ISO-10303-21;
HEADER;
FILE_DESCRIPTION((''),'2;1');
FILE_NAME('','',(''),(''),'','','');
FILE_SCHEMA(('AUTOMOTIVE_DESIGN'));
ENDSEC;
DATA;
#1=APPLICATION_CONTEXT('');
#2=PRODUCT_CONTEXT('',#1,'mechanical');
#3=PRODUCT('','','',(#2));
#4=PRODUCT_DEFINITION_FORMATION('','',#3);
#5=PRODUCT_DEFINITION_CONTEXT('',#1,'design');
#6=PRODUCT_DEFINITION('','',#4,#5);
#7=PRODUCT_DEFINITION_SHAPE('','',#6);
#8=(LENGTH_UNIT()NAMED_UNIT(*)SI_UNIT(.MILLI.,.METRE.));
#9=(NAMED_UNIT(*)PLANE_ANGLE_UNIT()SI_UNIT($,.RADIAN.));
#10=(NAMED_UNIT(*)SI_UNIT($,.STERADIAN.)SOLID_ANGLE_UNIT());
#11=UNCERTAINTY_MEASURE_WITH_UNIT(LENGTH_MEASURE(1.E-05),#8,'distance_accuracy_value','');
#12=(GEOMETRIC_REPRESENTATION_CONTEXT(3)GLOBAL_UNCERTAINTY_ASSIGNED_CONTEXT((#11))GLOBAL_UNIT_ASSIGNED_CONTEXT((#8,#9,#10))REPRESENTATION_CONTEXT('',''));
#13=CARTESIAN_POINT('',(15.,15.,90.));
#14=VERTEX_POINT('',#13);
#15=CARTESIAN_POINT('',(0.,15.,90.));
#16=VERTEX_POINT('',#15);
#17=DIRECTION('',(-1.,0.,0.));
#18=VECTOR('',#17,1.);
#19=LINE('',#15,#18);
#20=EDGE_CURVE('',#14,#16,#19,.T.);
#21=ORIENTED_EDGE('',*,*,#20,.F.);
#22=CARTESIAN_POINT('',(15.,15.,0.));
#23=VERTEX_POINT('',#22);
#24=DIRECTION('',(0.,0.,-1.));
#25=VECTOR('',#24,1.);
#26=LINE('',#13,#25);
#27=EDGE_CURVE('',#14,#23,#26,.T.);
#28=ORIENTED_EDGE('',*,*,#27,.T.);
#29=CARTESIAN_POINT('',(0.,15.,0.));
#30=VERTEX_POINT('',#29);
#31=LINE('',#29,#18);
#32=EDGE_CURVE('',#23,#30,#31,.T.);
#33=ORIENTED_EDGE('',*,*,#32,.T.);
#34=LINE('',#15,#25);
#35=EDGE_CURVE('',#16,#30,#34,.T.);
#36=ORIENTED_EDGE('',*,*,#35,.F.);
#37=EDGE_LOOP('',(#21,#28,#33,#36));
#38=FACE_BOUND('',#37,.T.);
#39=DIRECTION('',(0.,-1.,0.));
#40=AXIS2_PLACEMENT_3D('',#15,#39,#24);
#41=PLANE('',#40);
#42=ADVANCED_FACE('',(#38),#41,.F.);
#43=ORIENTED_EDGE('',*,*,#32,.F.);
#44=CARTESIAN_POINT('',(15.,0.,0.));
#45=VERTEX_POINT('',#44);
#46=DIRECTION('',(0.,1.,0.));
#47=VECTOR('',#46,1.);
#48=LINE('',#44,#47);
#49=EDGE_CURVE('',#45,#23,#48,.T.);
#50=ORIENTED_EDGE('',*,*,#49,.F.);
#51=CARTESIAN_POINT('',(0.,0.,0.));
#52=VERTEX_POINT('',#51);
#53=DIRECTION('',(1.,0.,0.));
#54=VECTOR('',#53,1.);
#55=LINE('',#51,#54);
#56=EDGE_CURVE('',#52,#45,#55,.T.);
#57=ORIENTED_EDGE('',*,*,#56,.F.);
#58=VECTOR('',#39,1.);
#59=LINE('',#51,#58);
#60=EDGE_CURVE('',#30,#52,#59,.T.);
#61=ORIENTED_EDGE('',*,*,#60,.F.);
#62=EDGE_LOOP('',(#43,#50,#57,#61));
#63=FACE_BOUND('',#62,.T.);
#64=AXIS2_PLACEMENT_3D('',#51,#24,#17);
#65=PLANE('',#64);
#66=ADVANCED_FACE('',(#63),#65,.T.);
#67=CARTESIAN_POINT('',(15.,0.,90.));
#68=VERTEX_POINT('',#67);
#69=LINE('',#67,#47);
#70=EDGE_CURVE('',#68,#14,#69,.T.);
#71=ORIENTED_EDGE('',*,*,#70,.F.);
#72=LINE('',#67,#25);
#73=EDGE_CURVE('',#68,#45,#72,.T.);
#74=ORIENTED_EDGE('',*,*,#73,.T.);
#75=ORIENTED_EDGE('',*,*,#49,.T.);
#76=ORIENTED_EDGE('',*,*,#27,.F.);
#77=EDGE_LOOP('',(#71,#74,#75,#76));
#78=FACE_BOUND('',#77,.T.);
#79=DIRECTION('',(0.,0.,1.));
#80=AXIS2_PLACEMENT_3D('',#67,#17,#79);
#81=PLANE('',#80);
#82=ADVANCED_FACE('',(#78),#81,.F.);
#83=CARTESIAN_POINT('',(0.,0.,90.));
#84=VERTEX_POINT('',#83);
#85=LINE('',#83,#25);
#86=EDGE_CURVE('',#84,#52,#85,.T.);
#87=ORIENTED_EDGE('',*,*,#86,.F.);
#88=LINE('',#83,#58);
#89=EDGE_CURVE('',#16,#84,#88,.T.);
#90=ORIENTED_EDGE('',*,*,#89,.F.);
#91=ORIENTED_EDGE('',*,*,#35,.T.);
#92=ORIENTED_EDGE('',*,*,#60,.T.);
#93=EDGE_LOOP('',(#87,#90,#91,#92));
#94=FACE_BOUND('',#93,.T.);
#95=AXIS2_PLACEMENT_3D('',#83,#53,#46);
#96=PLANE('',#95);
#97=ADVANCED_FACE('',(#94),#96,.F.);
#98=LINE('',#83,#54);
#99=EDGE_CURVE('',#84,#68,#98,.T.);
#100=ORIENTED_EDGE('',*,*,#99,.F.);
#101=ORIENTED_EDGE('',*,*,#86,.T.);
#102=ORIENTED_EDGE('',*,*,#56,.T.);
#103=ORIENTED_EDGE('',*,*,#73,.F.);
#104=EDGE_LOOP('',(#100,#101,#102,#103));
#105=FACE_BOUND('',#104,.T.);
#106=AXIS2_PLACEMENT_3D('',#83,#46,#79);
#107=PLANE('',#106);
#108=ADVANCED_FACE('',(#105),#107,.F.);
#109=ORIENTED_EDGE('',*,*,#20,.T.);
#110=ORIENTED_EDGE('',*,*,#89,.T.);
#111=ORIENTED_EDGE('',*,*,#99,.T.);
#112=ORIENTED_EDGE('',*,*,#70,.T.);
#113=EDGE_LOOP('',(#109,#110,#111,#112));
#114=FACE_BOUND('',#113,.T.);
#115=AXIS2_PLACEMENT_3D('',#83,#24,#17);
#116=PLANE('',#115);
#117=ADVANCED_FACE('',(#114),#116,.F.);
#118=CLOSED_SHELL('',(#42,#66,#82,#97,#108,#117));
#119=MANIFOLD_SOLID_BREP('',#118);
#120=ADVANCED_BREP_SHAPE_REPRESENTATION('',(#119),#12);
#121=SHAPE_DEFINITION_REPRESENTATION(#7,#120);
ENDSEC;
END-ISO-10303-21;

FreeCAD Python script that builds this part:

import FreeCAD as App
import Part
import Sketcher

doc = App.newDocument("Part")
body = doc.addObject("PartDesign::Body", "Body")

# Sketch on XY plane
sketch1 = body.newObject("Sketcher::SketchObject", "Sketch")
sketch1.AttachmentSupport = (doc.getObject("XY_Plane"), [""])
sketch1.MapMode = "FlatFace"
sketch1.addGeometry([
    Part.LineSegment(App.Vector(0, 15, 0), App.Vector(0, 0, 0)),
    Part.LineSegment(App.Vector(0, 0, 0), App.Vector(15, 0, 0)),
    Part.LineSegment(App.Vector(15, 0, 0), App.Vector(15, 15, 0)),
    Part.LineSegment(App.Vector(15, 15, 0), App.Vector(0, 15, 0)),
], False)
sketch1.addConstraint([
    Sketcher.Constraint("Coincident", 0, 2, 1, 1),
    Sketcher.Constraint("Coincident", 1, 2, 2, 1),
    Sketcher.Constraint("Coincident", 2, 2, 3, 1),
    Sketcher.Constraint("Coincident", 3, 2, 0, 1),
    Sketcher.Constraint("Vertical", 0),
    Sketcher.Constraint("Horizontal", 1),
    Sketcher.Constraint("Vertical", 2),
    Sketcher.Constraint("Horizontal", 3),
    Sketcher.Constraint("Coincident", 0, 2, -1, 1),
    Sketcher.Constraint("Equal", 3, 0),
    Sketcher.Constraint("DistanceX", 1, 1, 1, 2, 15.0),
])
pad1 = body.newObject("PartDesign::Pad", "Pad")
pad1.Profile = sketch1
pad1.Length = 90

doc.recompute()
